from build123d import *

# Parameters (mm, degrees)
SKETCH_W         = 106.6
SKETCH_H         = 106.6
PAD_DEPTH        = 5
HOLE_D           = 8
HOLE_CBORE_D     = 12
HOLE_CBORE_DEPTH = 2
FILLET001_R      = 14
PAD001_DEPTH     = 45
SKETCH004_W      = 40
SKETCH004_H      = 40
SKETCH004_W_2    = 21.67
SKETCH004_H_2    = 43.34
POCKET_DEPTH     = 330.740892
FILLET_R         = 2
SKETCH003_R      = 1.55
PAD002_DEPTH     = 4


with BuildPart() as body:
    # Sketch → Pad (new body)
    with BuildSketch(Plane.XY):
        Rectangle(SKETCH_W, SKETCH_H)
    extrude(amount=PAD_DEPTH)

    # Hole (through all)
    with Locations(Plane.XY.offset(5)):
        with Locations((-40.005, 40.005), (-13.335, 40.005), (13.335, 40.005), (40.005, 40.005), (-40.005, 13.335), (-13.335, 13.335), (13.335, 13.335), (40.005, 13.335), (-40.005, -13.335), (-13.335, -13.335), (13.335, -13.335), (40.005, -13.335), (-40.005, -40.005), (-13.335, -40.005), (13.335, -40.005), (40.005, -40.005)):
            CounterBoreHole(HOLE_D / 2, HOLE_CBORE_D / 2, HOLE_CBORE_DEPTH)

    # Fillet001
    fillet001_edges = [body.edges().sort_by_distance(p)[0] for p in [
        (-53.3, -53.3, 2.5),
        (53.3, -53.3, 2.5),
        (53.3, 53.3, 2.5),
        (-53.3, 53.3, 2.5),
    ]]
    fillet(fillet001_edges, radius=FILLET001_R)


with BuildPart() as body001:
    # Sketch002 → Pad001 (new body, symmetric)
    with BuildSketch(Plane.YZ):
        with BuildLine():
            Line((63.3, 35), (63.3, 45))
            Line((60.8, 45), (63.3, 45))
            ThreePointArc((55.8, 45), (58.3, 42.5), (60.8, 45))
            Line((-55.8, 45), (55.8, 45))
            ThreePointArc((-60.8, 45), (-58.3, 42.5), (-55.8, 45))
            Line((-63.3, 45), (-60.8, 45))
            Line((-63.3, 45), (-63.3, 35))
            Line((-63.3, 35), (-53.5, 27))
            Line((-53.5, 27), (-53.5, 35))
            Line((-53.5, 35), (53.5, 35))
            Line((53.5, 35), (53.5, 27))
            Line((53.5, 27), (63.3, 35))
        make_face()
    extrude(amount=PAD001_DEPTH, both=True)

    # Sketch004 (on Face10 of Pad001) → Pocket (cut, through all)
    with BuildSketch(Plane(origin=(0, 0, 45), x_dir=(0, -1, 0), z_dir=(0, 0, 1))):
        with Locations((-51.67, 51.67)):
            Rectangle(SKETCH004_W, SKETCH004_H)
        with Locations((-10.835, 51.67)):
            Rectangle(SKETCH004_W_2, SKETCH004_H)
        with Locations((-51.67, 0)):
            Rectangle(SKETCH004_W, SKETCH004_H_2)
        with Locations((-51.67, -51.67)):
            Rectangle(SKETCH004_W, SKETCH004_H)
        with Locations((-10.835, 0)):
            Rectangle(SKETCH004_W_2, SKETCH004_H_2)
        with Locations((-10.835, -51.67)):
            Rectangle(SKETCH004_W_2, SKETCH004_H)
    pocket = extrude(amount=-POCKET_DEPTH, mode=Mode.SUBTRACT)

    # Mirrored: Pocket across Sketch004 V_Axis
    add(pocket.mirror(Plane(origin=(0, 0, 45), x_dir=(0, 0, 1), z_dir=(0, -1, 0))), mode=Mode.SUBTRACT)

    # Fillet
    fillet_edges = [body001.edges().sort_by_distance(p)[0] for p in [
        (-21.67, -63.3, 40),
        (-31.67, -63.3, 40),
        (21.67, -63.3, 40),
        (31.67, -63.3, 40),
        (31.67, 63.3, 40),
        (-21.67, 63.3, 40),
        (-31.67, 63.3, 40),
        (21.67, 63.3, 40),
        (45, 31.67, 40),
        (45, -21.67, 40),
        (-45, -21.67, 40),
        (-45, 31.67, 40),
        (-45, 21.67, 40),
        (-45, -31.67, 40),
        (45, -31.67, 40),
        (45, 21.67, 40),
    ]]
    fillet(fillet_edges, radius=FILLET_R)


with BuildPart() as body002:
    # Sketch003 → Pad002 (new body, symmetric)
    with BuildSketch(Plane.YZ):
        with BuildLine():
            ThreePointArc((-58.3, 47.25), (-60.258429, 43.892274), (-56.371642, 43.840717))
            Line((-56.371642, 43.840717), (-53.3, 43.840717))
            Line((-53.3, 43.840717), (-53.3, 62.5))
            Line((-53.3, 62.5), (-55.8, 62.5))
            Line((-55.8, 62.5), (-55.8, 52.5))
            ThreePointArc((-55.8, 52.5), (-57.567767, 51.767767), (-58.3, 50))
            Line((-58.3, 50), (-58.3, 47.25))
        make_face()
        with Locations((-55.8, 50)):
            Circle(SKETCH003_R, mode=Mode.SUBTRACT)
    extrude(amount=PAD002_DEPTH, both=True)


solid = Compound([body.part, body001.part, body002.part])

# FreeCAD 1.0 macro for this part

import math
import FreeCAD as App
import Part
import Sketcher

V = App.Vector


def edges_at(feature, points):
    """Names of the edges that pass closest to the given points."""
    edges = feature.Shape.Edges
    near = lambda p: min(range(len(edges)), key=lambda i: edges[i].distToShape(Part.Vertex(*p))[0])
    return sorted({f"Edge{near(p) + 1}" for p in points})

doc = App.newDocument("Part")
params = doc.addObject("Spreadsheet::Sheet", "Params")
for row, (alias, value) in enumerate([
    ("sketch1_width", "106.6 mm"),
    ("pad1_length", "5 mm"),
    ("sketch2_diameter", "8 mm"),
    ("hole_diameter", "8 mm"),
    ("hole_cbore_diameter", "12 mm"),
    ("hole_cbore_depth", "2 mm"),
    ("fillet_radius", "14 mm"),
    ("sketch3_radius", "2.5 mm"),
    ("sketch3_width", "107 mm"),
    ("sketch3_height", "10 mm"),
    ("sketch3_height2", "8 mm"),
    ("sketch3_width2", "2.5 mm"),
    ("pad2_length", "90 mm"),
    ("sketch4_width", "40 mm"),
    ("sketch4_width2", "43.34 mm"),
    ("sketch4_height", "21.67 mm"),
    ("fillet2_radius", "2 mm"),
    ("sketch5_diameter", "3.1 mm"),
    ("sketch5_radius", "2.5 mm"),
    ("sketch5_height", "10 mm"),
    ("sketch5_radius2", "2.25 mm"),
    ("sketch5_width", "2.5 mm"),
    ("pad3_length", "8 mm"),
], start=1):
    params.set(f"A{row}", alias)
    params.set(f"B{row}", "=" + value)
    params.setAlias(f"B{row}", alias)

body = doc.addObject("PartDesign::Body", "Body")

# Sketch on XY plane
sketch1 = body.newObject("Sketcher::SketchObject", "Sketch")
sketch1.AttachmentSupport = (doc.getObject("XY_Plane"), [""])
sketch1.MapMode = "FlatFace"
sketch1.addGeometry([
    Part.LineSegment(V(-53.3, 53.3, 0), V(-53.3, -53.3, 0)),
    Part.LineSegment(V(-53.3, -53.3, 0), V(53.3, -53.3, 0)),
    Part.LineSegment(V(53.3, -53.3, 0), V(53.3, 53.3, 0)),
    Part.LineSegment(V(53.3, 53.3, 0), V(-53.3, 53.3, 0)),
], False)
sketch1.addConstraint([
    Sketcher.Constraint("Coincident", 0, 2, 1, 1),
    Sketcher.Constraint("Coincident", 1, 2, 2, 1),
    Sketcher.Constraint("Coincident", 2, 2, 3, 1),
    Sketcher.Constraint("Coincident", 3, 2, 0, 1),
    Sketcher.Constraint("Vertical", 0),
    Sketcher.Constraint("Horizontal", 1),
    Sketcher.Constraint("Vertical", 2),
    Sketcher.Constraint("Horizontal", 3),
    Sketcher.Constraint("Symmetric", 0, 2, 2, 2, -1, 1),
    Sketcher.Constraint("Equal", 3, 0),
    Sketcher.Constraint("DistanceX", 1, 1, 1, 2, 106.6),
])
sketch1.setExpression("Constraints[10]", "Params.sketch1_width")
pad1 = body.newObject("PartDesign::Pad", "Pad")
pad1.Profile = sketch1
pad1.setExpression("Length", "Params.pad1_length")

# Sketch on XY plane
sketch2 = body.newObject("Sketcher::SketchObject", "Sketch001")
sketch2.AttachmentSupport = (doc.getObject("XY_Plane"), [""])
sketch2.MapMode = "FlatFace"
sketch2.AttachmentOffset = App.Placement(V(0, 0, 5), App.Rotation())
sketch2.addGeometry([
    Part.Circle(V(-40.005, 40.005, 0), V(0, 0, 1), 4),  # 0
    Part.Circle(V(-13.335, 40.005, 0), V(0, 0, 1), 4),  # 1
    Part.Circle(V(13.335, 40.005, 0), V(0, 0, 1), 4),  # 2
    Part.Circle(V(40.005, 40.005, 0), V(0, 0, 1), 4),  # 3
    Part.Circle(V(-40.005, 13.335, 0), V(0, 0, 1), 4),  # 4
    Part.Circle(V(-13.335, 13.335, 0), V(0, 0, 1), 4),  # 5
    Part.Circle(V(13.335, 13.335, 0), V(0, 0, 1), 4),  # 6
    Part.Circle(V(40.005, 13.335, 0), V(0, 0, 1), 4),  # 7
    Part.Circle(V(-40.005, -13.335, 0), V(0, 0, 1), 4),  # 8
    Part.Circle(V(-13.335, -13.335, 0), V(0, 0, 1), 4),  # 9
    Part.Circle(V(13.335, -13.335, 0), V(0, 0, 1), 4),  # 10
    Part.Circle(V(40.005, -13.335, 0), V(0, 0, 1), 4),  # 11
    Part.Circle(V(-40.005, -40.005, 0), V(0, 0, 1), 4),  # 12
    Part.Circle(V(-13.335, -40.005, 0), V(0, 0, 1), 4),  # 13
    Part.Circle(V(13.335, -40.005, 0), V(0, 0, 1), 4),  # 14
    Part.Circle(V(40.005, -40.005, 0), V(0, 0, 1), 4),  # 15
], False)
sketch2.addConstraint([
    Sketcher.Constraint("Equal", 0, 1),
    Sketcher.Constraint("Equal", 1, 2),
    Sketcher.Constraint("Equal", 2, 3),
    Sketcher.Constraint("Equal", 3, 4),
    Sketcher.Constraint("Equal", 4, 5),
    Sketcher.Constraint("Equal", 5, 6),
    Sketcher.Constraint("Equal", 6, 7),
    Sketcher.Constraint("Equal", 7, 8),
    Sketcher.Constraint("Equal", 8, 9),
    Sketcher.Constraint("Equal", 9, 10),
    Sketcher.Constraint("Equal", 10, 11),
    Sketcher.Constraint("Equal", 11, 12),
    Sketcher.Constraint("Equal", 12, 13),
    Sketcher.Constraint("Equal", 13, 14),
    Sketcher.Constraint("Equal", 14, 15),
    Sketcher.Constraint("Symmetric", 7, 3, 8, 3, -1, 1),
    Sketcher.Constraint("Symmetric", 6, 3, 9, 3, -1, 1),
    Sketcher.Constraint("Symmetric", 5, 3, 10, 3, -1, 1),
    Sketcher.Constraint("Symmetric", 4, 3, 11, 3, -1, 1),
    Sketcher.Constraint("Symmetric", 3, 3, 12, 3, -1, 1),
    Sketcher.Constraint("Symmetric", 2, 3, 13, 3, -1, 1),
    Sketcher.Constraint("Symmetric", 1, 3, 14, 3, -1, 1),
    Sketcher.Constraint("Symmetric", 0, 3, 15, 3, -1, 1),
    Sketcher.Constraint("Symmetric", 1, 3, 2, 3, -2),
    Sketcher.Constraint("Symmetric", 0, 3, 3, 3, -2),
    Sketcher.Constraint("Symmetric", 5, 3, 6, 3, -2),
    Sketcher.Constraint("Symmetric", 4, 3, 7, 3, -2),
    Sketcher.Constraint("Horizontal", 0, 3, 1, 3),
    Sketcher.Constraint("Horizontal", 4, 3, 5, 3),
    Sketcher.Constraint("Vertical", 0, 3, 4, 3),
    Sketcher.Constraint("Vertical", 1, 3, 5, 3),
    Sketcher.Constraint("Diameter", 0, 8.0),
    Sketcher.Constraint("DistanceX", 0, 3, 1, 3, 26.67),
    Sketcher.Constraint("DistanceX", 1, 3, 2, 3, 26.67),
    Sketcher.Constraint("DistanceY", 4, 3, 0, 3, 26.67),
    Sketcher.Constraint("DistanceY", 8, 3, 4, 3, 26.67),
])
sketch2.setExpression("Constraints[31]", "Params.sketch2_diameter")
doc.recompute()
hole = body.newObject("PartDesign::Hole", "Hole")
hole.Profile = sketch2
hole.ThreadType = "None"
hole.setExpression("Diameter", "Params.hole_diameter")
hole.DepthType = "ThroughAll"
hole.HoleCutType = "Counterbore"
hole.setExpression("HoleCutDiameter", "Params.hole_cbore_diameter")
hole.setExpression("HoleCutDepth", "Params.hole_cbore_depth")
doc.recompute()

fillet = body.newObject("PartDesign::Fillet", "Fillet")
fillet.Base = (hole, edges_at(hole, [
    (-53.3, -53.3, 2.5),
    (53.3, -53.3, 2.5),
    (53.3, 53.3, 2.5),
    (-53.3, 53.3, 2.5),
]))
fillet.setExpression("Radius", "Params.fillet_radius")
body2 = doc.addObject("PartDesign::Body", "Body001")

# Sketch on YZ plane
sketch3 = body2.newObject("Sketcher::SketchObject", "Sketch002")
sketch3.AttachmentSupport = (doc.getObject("YZ_Plane001"), [""])
sketch3.MapMode = "FlatFace"
sketch3.addGeometry([
    Part.LineSegment(V(63.3, 35, 0), V(63.3, 45, 0)),  # 0
    Part.LineSegment(V(63.3, 45, 0), V(60.8, 45, 0)),  # 1
    Part.ArcOfCircle(Part.Circle(V(58.3, 45, 0), V(0, 0, 1), 2.5), math.radians(180), math.radians(360)),  # 2
    Part.LineSegment(V(55.8, 45, 0), V(-55.8, 45, 0)),  # 3
    Part.ArcOfCircle(Part.Circle(V(-58.3, 45, 0), V(0, 0, 1), 2.5), math.radians(180), math.radians(360)),  # 4
    Part.LineSegment(V(-60.8, 45, 0), V(-63.3, 45, 0)),  # 5
    Part.LineSegment(V(-63.3, 45, 0), V(-63.3, 35, 0)),  # 6
    Part.LineSegment(V(-63.3, 35, 0), V(-53.5, 27, 0)),  # 7
    Part.LineSegment(V(-53.5, 27, 0), V(-53.5, 35, 0)),  # 8
    Part.LineSegment(V(-53.5, 35, 0), V(53.5, 35, 0)),  # 9
    Part.LineSegment(V(53.5, 35, 0), V(53.5, 27, 0)),  # 10
    Part.LineSegment(V(53.5, 27, 0), V(63.3, 35, 0)),  # 11
], False)
sketch3.addConstraint([
    Sketcher.Constraint("Coincident", 0, 2, 1, 1),
    Sketcher.Constraint("Coincident", 1, 2, 2, 2),
    Sketcher.Constraint("Coincident", 2, 1, 3, 1),
    Sketcher.Constraint("Coincident", 3, 2, 4, 2),
    Sketcher.Constraint("Coincident", 4, 1, 5, 1),
    Sketcher.Constraint("Coincident", 5, 2, 6, 1),
    Sketcher.Constraint("Coincident", 6, 2, 7, 1),
    Sketcher.Constraint("Coincident", 7, 2, 8, 1),
    Sketcher.Constraint("Coincident", 8, 2, 9, 1),
    Sketcher.Constraint("Coincident", 9, 2, 10, 1),
    Sketcher.Constraint("Coincident", 10, 2, 11, 1),
    Sketcher.Constraint("Coincident", 11, 2, 0, 1),
    Sketcher.Constraint("Vertical", 0),
    Sketcher.Constraint("Horizontal", 1),
    Sketcher.Constraint("Horizontal", 3),
    Sketcher.Constraint("Horizontal", 5),
    Sketcher.Constraint("Vertical", 6),
    Sketcher.Constraint("Vertical", 8),
    Sketcher.Constraint("Horizontal", 9),
    Sketcher.Constraint("Vertical", 10),
    Sketcher.Constraint("Equal", 2, 4),
    Sketcher.Constraint("Symmetric", 2, 3, 4, 3, -2),
    Sketcher.Constraint("Symmetric", 0, 2, 5, 2, -2),
    Sketcher.Constraint("Symmetric", 7, 2, 10, 2, -2),
    Sketcher.Constraint("Horizontal", 4, 3, 0, 2),
    Sketcher.Constraint("Horizontal", 1, 2, 2, 1),
    Sketcher.Constraint("Horizontal", 6, 2, 8, 2),
    Sketcher.Constraint("Horizontal", 9, 2, 11, 2),
    Sketcher.Constraint("Radius", 2, 2.5),
    Sketcher.Constraint("DistanceX", 9, 1, 9, 2, 107.0),
    Sketcher.Constraint("DistanceY", 0, 1, 0, 2, 10.0),
    Sketcher.Constraint("DistanceY", 8, 1, 8, 2, 8.0),
    Sketcher.Constraint("DistanceX", 1, 2, 1, 1, 2.5),
    Sketcher.Constraint("DistanceX", 3, 2, 3, 1, 111.6),
    Sketcher.Constraint("DistanceY", -1, 1, 2, 3, 45.0),
])
sketch3.setExpression("Constraints[28]", "Params.sketch3_radius")
sketch3.setExpression("Constraints[29]", "Params.sketch3_width")
sketch3.setExpression("Constraints[30]", "Params.sketch3_height")
sketch3.setExpression("Constraints[31]", "Params.sketch3_height2")
sketch3.setExpression("Constraints[32]", "Params.sketch3_width2")
pad2 = body2.newObject("PartDesign::Pad", "Pad001")
pad2.Profile = sketch3
pad2.setExpression("Length", "Params.pad2_length")
pad2.Midplane = True

# Sketch on XY plane
sketch4 = body2.newObject("Sketcher::SketchObject", "Sketch003")
sketch4.AttachmentSupport = (doc.getObject("XY_Plane001"), [""])
sketch4.MapMode = "FlatFace"
sketch4.AttachmentOffset = App.Placement(V(0, 0, 45), App.Rotation())
sketch4.addGeometry([
    Part.LineSegment(V(71.67, 71.67, 0), V(31.67, 71.67, 0)),  # 0
    Part.LineSegment(V(31.67, 71.67, 0), V(31.67, 31.67, 0)),  # 1
    Part.LineSegment(V(31.67, 31.67, 0), V(71.67, 31.67, 0)),  # 2
    Part.LineSegment(V(71.67, 31.67, 0), V(71.67, 71.67, 0)),  # 3
    Part.LineSegment(V(71.67, 21.67, 0), V(31.67, 21.67, 0)),  # 4
    Part.LineSegment(V(31.67, 21.67, 0), V(31.67, 0, 0)),  # 5
    Part.LineSegment(V(31.67, 0, 0), V(71.67, 0, 0)),  # 6
    Part.LineSegment(V(71.67, 0, 0), V(71.67, 21.67, 0)),  # 7
    Part.LineSegment(V(21.67, 71.67, 0), V(-21.67, 71.67, 0)),  # 8
    Part.LineSegment(V(-21.67, 71.67, 0), V(-21.67, 31.67, 0)),  # 9
    Part.LineSegment(V(-21.67, 31.67, 0), V(21.67, 31.67, 0)),  # 10
    Part.LineSegment(V(21.67, 31.67, 0), V(21.67, 71.67, 0)),  # 11
    Part.LineSegment(V(-31.67, 71.67, 0), V(-71.67, 71.67, 0)),  # 12
    Part.LineSegment(V(-71.67, 71.67, 0), V(-71.67, 31.67, 0)),  # 13
    Part.LineSegment(V(-71.67, 31.67, 0), V(-31.67, 31.67, 0)),  # 14
    Part.LineSegment(V(-31.67, 31.67, 0), V(-31.67, 71.67, 0)),  # 15
    Part.LineSegment(V(21.67, 21.67, 0), V(-21.67, 21.67, 0)),  # 16
    Part.LineSegment(V(-21.67, 21.67, 0), V(-21.67, 0, 0)),  # 17
    Part.LineSegment(V(-21.67, 0, 0), V(21.67, 0, 0)),  # 18
    Part.LineSegment(V(21.67, 0, 0), V(21.67, 21.67, 0)),  # 19
    Part.LineSegment(V(-31.67, 21.67, 0), V(-71.67, 21.67, 0)),  # 20
    Part.LineSegment(V(-71.67, 21.67, 0), V(-71.67, 0, 0)),  # 21
    Part.LineSegment(V(-71.67, 0, 0), V(-31.67, 0, 0)),  # 22
    Part.LineSegment(V(-31.67, 0, 0), V(-31.67, 21.67, 0)),  # 23
], False)
sketch4.addConstraint([
    Sketcher.Constraint("Coincident", 0, 2, 1, 1),
    Sketcher.Constraint("Coincident", 1, 2, 2, 1),
    Sketcher.Constraint("Coincident", 2, 2, 3, 1),
    Sketcher.Constraint("Coincident", 3, 2, 0, 1),
    Sketcher.Constraint("Coincident", 4, 2, 5, 1),
    Sketcher.Constraint("Coincident", 5, 2, 6, 1),
    Sketcher.Constraint("Coincident", 6, 2, 7, 1),
    Sketcher.Constraint("Coincident", 7, 2, 4, 1),
    Sketcher.Constraint("Coincident", 8, 2, 9, 1),
    Sketcher.Constraint("Coincident", 9, 2, 10, 1),
    Sketcher.Constraint("Coincident", 10, 2, 11, 1),
    Sketcher.Constraint("Coincident", 11, 2, 8, 1),
    Sketcher.Constraint("Coincident", 12, 2, 13, 1),
    Sketcher.Constraint("Coincident", 13, 2, 14, 1),
    Sketcher.Constraint("Coincident", 14, 2, 15, 1),
    Sketcher.Constraint("Coincident", 15, 2, 12, 1),
    Sketcher.Constraint("Coincident", 16, 2, 17, 1),
    Sketcher.Constraint("Coincident", 17, 2, 18, 1),
    Sketcher.Constraint("Coincident", 18, 2, 19, 1),
    Sketcher.Constraint("Coincident", 19, 2, 16, 1),
    Sketcher.Constraint("Coincident", 20, 2, 21, 1),
    Sketcher.Constraint("Coincident", 21, 2, 22, 1),
    Sketcher.Constraint("Coincident", 22, 2, 23, 1),
    Sketcher.Constraint("Coincident", 23, 2, 20, 1),
    Sketcher.Constraint("Horizontal", 0),
    Sketcher.Constraint("Vertical", 1),
    Sketcher.Constraint("Horizontal", 2),
    Sketcher.Constraint("Vertical", 3),
    Sketcher.Constraint("Horizontal", 4),
    Sketcher.Constraint("Vertical", 5),
    Sketcher.Constraint("Horizontal", 6),
    Sketcher.Constraint("Vertical", 7),
    Sketcher.Constraint("Horizontal", 8),
    Sketcher.Constraint("Vertical", 9),
    Sketcher.Constraint("Horizontal", 10),
    Sketcher.Constraint("Vertical", 11),
    Sketcher.Constraint("Horizontal", 12),
    Sketcher.Constraint("Vertical", 13),
    Sketcher.Constraint("Horizontal", 14),
    Sketcher.Constraint("Vertical", 15),
    Sketcher.Constraint("Horizontal", 16),
    Sketcher.Constraint("Vertical", 17),
    Sketcher.Constraint("Horizontal", 18),
    Sketcher.Constraint("Vertical", 19),
    Sketcher.Constraint("Horizontal", 20),
    Sketcher.Constraint("Vertical", 21),
    Sketcher.Constraint("Horizontal", 22),
    Sketcher.Constraint("Vertical", 23),
    Sketcher.Constraint("Symmetric", 17, 2, 18, 2, -1, 1),
    Sketcher.Constraint("Symmetric", 6, 2, 21, 2, -1, 1),
    Sketcher.Constraint("Symmetric", 3, 2, 12, 2, -2),
    Sketcher.Constraint("Symmetric", 1, 2, 14, 2, -2),
    Sketcher.Constraint("Symmetric", 5, 2, 22, 2, -2),
    Sketcher.Constraint("Horizontal", 3, 2, 8, 2),
    Sketcher.Constraint("Horizontal", 2, 2, 9, 2),
    Sketcher.Constraint("Horizontal", 7, 2, 16, 2),
    Sketcher.Constraint("Horizontal", 19, 2, 20, 2),
    Sketcher.Constraint("Vertical", 1, 2, 4, 2),
    Sketcher.Constraint("Vertical", 3, 2, 6, 2),
    Sketcher.Constraint("Vertical", 9, 2, 16, 2),
    Sketcher.Constraint("Vertical", 11, 2, 18, 2),
    Sketcher.Constraint("Equal", 22, 1),
    Sketcher.Constraint("DistanceX", 0, 2, 0, 1, 40.0),
    Sketcher.Constraint("DistanceY", 4, 2, 1, 2, 10.0),
    Sketcher.Constraint("DistanceX", 10, 2, 1, 2, 10.0),
    Sketcher.Constraint("DistanceX", 8, 2, 8, 1, 43.34),
    Sketcher.Constraint("DistanceY", 5, 2, 5, 1, 21.67),
])
sketch4.setExpression("Constraints[62]", "Params.sketch4_width")
sketch4.setExpression("Constraints[65]", "Params.sketch4_width2")
sketch4.setExpression("Constraints[66]", "Params.sketch4_height")
pocket1 = body2.newObject("PartDesign::Pocket", "Pocket")
pocket1.Profile = sketch4
pocket1.Type = "ThroughAll"
doc.recompute()

mirrored = body2.newObject("PartDesign::Mirrored", "Mirrored")
mirrored.Originals = [pocket1]
mirrored.MirrorPlane = (doc.getObject("XZ_Plane001"), [""])
body2.Tip = mirrored
doc.recompute()

fillet2 = body2.newObject("PartDesign::Fillet", "Fillet001")
fillet2.Base = (mirrored, edges_at(mirrored, [
    (-21.67, -63.3, 40),
    (-31.67, -63.3, 40),
    (21.67, -63.3, 40),
    (31.67, -63.3, 40),
    (31.67, 63.3, 40),
    (-21.67, 63.3, 40),
    (-31.67, 63.3, 40),
    (21.67, 63.3, 40),
    (45, 31.67, 40),
    (45, -21.67, 40),
    (-45, -21.67, 40),
    (-45, 31.67, 40),
    (-45, 21.67, 40),
    (-45, -31.67, 40),
    (45, -31.67, 40),
    (45, 21.67, 40),
]))
fillet2.setExpression("Radius", "Params.fillet2_radius")
body3 = doc.addObject("PartDesign::Body", "Body002")

# Sketch on YZ plane
sketch5 = body3.newObject("Sketcher::SketchObject", "Sketch004")
sketch5.AttachmentSupport = (doc.getObject("YZ_Plane002"), [""])
sketch5.MapMode = "FlatFace"
sketch5.addGeometry([
    Part.ArcOfCircle(Part.Circle(V(-58.3, 45, 0), V(0, 0, 1), 2.25), math.radians(90.000002), math.radians(328.986719)),  # 0
    Part.LineSegment(V(-56.371642, 43.840717, 0), V(-53.3, 43.840717, 0)),  # 1
    Part.LineSegment(V(-53.3, 43.840717, 0), V(-53.3, 62.5, 0)),  # 2
    Part.LineSegment(V(-53.3, 62.5, 0), V(-55.8, 62.5, 0)),  # 3
    Part.LineSegment(V(-55.8, 62.5, 0), V(-55.8, 52.5, 0)),  # 4
    Part.ArcOfCircle(Part.Circle(V(-55.8, 50, 0), V(0, 0, 1), 2.5), math.radians(89.999996), math.radians(180.000004)),  # 5
    Part.LineSegment(V(-58.3, 50, 0), V(-58.3, 47.25, 0)),  # 6
    Part.Circle(V(-55.8, 50, 0), V(0, 0, 1), 1.55),  # 7
], False)
sketch5.addConstraint([
    Sketcher.Constraint("Coincident", 0, 2, 1, 1),
    Sketcher.Constraint("Coincident", 1, 2, 2, 1),
    Sketcher.Constraint("Coincident", 2, 2, 3, 1),
    Sketcher.Constraint("Coincident", 3, 2, 4, 1),
    Sketcher.Constraint("Coincident", 4, 2, 5, 1),
    Sketcher.Constraint("Tangent", 5, 2, 6, 1),
    Sketcher.Constraint("Coincident", 6, 2, 0, 1),
    Sketcher.Constraint("Horizontal", 1),
    Sketcher.Constraint("Vertical", 2),
    Sketcher.Constraint("Horizontal", 3),
    Sketcher.Constraint("Vertical", 4),
    Sketcher.Constraint("Vertical", 6),
    Sketcher.Constraint("Coincident", 7, 3, 5, 3),
    Sketcher.Constraint("Vertical", 7, 3, 3, 2),
    Sketcher.Constraint("Vertical", 0, 3, 5, 2),
    Sketcher.Constraint("Diameter", 7, 3.1),
    Sketcher.Constraint("Radius", 5, 2.5),
    Sketcher.Constraint("DistanceY", 4, 2, 4, 1, 10.0),
    Sketcher.Constraint("Radius", 0, 2.25),
    Sketcher.Constraint("DistanceX", 3, 2, 3, 1, 2.5),
    Sketcher.Constraint("DistanceY", -1, 1, 0, 3, 45.0),
    Sketcher.Constraint("DistanceY", -1, 1, 5, 3, 50.0),
    Sketcher.Constraint("DistanceX", 0, 3, -1, 1, 58.3),
    Sketcher.Constraint("DistanceX", 1, 1, 1, 2, 3.071642),
])
sketch5.setExpression("Constraints[15]", "Params.sketch5_diameter")
sketch5.setExpression("Constraints[16]", "Params.sketch5_radius")
sketch5.setExpression("Constraints[17]", "Params.sketch5_height")
sketch5.setExpression("Constraints[18]", "Params.sketch5_radius2")
sketch5.setExpression("Constraints[19]", "Params.sketch5_width")
pad3 = body3.newObject("PartDesign::Pad", "Pad002")
pad3.Profile = sketch5
pad3.setExpression("Length", "Params.pad3_length")
pad3.Midplane = True

doc.recompute()
